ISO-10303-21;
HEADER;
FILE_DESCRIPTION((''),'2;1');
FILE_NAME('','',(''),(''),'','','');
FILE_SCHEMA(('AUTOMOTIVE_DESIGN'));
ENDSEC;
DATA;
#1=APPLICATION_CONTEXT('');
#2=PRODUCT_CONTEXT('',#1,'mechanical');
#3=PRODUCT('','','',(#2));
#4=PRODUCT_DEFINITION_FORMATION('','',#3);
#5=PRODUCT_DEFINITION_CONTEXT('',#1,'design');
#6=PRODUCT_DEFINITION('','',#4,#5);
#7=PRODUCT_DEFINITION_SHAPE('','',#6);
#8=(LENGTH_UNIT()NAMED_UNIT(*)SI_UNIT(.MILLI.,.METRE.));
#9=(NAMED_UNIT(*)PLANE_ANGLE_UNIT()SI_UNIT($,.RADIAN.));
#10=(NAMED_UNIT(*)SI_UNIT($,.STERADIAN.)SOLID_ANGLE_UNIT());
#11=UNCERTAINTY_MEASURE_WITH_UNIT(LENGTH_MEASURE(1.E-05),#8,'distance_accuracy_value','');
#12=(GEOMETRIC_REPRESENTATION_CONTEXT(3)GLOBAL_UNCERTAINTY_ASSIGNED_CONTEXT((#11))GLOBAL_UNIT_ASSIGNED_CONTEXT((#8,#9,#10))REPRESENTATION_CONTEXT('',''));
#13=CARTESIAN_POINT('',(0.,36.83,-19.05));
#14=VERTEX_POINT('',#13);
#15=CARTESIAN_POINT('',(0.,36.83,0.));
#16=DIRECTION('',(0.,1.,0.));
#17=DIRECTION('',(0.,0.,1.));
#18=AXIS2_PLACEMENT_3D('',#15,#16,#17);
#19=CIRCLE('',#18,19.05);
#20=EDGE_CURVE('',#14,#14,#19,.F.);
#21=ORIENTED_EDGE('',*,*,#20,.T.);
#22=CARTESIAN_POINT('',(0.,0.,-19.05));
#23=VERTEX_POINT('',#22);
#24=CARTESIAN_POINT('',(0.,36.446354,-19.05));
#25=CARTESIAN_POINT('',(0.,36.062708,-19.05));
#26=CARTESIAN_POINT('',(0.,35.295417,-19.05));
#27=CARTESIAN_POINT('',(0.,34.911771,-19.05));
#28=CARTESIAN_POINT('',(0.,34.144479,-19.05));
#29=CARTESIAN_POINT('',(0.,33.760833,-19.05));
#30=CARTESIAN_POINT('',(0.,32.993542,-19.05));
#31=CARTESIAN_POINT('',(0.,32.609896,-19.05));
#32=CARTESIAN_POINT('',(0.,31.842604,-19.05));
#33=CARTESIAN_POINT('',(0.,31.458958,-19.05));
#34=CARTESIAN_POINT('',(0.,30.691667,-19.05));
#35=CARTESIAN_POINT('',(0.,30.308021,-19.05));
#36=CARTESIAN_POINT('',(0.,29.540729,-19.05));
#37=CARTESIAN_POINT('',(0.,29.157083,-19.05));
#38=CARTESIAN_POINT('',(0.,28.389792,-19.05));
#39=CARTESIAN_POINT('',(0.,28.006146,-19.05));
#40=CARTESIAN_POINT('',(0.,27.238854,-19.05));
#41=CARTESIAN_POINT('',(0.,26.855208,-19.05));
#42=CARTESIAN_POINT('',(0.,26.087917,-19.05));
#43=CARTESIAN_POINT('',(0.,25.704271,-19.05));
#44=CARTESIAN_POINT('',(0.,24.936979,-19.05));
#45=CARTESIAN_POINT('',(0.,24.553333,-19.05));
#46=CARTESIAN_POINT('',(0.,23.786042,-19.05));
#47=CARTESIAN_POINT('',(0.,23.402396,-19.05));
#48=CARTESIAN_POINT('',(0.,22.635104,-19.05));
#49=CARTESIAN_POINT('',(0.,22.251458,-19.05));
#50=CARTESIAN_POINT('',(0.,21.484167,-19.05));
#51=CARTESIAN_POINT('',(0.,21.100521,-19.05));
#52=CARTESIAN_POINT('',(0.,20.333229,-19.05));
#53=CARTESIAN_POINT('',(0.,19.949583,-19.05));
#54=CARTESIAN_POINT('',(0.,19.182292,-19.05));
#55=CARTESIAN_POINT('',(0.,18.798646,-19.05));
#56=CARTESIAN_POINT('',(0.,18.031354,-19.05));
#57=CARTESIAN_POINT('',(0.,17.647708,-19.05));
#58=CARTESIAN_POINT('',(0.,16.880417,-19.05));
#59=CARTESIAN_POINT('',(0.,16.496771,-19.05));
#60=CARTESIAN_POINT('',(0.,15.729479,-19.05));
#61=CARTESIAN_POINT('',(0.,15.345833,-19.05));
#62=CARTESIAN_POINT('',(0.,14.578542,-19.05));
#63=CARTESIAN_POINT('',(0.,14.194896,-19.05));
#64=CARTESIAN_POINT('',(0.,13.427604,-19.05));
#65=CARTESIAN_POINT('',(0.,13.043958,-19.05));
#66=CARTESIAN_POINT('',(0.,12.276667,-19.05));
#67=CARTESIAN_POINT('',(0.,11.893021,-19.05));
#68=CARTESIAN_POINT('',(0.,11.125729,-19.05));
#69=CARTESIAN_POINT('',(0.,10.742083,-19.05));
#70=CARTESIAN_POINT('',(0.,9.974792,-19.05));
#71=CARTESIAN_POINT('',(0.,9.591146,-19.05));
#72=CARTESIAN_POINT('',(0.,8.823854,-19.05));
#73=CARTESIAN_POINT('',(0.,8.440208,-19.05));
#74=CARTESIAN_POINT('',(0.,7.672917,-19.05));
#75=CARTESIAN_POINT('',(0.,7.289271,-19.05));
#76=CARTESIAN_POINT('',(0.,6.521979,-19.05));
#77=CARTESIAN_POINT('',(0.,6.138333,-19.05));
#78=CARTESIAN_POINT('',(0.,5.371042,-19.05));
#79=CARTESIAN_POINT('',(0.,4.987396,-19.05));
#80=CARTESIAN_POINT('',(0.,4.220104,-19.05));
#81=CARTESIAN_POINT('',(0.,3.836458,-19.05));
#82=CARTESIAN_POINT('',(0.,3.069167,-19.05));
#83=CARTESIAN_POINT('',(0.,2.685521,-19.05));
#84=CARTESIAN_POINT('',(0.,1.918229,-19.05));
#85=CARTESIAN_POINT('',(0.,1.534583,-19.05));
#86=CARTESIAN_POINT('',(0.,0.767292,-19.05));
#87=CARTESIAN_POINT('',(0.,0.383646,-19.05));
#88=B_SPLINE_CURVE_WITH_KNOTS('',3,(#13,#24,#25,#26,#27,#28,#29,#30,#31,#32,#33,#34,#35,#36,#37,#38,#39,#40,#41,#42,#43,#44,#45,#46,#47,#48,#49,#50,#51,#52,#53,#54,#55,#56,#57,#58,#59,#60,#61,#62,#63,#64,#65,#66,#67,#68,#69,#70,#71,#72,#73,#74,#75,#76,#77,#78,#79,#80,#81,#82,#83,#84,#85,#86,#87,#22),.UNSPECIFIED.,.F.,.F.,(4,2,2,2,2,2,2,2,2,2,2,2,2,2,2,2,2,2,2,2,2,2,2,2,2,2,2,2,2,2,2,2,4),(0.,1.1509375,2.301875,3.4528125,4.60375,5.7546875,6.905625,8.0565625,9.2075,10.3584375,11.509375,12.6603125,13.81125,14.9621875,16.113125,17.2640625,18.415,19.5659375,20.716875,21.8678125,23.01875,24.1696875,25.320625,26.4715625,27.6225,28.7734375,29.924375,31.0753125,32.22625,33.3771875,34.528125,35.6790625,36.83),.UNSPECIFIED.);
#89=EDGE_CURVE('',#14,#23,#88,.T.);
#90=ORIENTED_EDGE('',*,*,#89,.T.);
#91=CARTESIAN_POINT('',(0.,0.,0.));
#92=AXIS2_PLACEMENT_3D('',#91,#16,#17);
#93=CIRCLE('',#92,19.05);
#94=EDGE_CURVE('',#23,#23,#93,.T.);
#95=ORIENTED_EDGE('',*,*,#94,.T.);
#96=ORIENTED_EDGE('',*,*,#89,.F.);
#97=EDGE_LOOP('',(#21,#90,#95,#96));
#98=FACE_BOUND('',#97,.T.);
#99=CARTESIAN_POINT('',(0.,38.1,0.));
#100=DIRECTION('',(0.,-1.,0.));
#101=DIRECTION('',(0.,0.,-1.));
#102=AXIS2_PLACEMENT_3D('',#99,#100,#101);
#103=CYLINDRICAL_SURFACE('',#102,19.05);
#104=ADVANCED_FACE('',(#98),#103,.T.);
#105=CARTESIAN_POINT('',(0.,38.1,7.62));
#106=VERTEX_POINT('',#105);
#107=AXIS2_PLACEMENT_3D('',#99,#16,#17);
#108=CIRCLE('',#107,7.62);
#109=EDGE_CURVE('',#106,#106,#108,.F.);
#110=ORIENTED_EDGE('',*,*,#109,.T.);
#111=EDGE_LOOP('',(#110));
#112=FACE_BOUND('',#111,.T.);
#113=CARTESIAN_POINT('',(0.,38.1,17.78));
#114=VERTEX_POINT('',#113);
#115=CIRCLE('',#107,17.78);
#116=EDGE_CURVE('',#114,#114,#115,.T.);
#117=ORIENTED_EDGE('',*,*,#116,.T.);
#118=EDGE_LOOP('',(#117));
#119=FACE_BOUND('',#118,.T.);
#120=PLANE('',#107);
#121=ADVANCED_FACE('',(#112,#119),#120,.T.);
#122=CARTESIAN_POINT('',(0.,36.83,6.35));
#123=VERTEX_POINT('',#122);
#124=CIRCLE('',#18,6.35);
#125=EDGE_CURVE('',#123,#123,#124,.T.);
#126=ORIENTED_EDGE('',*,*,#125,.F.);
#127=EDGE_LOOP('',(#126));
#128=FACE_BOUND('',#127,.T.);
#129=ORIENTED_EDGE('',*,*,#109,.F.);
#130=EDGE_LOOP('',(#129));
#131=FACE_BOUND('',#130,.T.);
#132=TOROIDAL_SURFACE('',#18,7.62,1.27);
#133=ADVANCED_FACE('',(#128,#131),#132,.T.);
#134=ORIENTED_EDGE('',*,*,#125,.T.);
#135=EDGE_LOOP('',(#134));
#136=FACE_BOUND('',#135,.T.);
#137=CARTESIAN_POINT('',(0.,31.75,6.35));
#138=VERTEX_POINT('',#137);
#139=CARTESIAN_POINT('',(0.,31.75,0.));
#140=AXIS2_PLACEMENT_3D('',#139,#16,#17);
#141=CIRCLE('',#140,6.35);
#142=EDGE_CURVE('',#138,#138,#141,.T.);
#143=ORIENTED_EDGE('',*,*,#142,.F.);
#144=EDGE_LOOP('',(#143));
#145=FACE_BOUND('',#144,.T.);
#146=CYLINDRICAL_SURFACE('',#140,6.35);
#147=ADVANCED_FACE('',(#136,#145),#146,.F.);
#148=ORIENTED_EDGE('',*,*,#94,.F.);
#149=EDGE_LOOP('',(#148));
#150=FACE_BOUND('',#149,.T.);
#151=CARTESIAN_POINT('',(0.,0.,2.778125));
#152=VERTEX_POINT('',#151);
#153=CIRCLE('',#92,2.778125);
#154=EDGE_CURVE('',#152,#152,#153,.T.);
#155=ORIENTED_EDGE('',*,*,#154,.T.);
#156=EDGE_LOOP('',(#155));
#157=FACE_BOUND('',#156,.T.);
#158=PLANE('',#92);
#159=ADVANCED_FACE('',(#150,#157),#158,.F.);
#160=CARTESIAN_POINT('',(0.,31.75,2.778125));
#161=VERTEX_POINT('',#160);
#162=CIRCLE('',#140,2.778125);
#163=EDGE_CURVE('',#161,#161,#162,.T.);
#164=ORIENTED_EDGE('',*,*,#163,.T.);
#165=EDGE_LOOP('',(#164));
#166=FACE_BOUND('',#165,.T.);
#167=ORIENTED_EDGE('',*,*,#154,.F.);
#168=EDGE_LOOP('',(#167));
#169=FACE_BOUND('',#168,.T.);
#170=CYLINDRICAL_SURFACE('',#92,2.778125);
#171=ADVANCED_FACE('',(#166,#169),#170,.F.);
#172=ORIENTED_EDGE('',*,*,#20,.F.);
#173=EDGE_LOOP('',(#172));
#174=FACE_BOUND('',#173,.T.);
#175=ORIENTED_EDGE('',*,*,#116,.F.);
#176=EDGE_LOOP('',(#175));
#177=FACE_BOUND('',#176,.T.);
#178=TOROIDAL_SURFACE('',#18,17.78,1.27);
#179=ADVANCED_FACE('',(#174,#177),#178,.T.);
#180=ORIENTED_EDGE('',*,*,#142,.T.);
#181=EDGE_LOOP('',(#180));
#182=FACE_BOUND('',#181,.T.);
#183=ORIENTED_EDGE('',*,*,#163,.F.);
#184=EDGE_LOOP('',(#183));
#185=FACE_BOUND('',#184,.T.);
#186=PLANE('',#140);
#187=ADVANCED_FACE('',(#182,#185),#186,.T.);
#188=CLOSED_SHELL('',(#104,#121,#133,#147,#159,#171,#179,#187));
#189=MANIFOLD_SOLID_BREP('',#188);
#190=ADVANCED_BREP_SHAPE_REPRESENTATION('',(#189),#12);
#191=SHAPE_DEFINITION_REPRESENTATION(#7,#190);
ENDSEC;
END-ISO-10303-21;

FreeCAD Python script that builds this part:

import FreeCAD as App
import Part
import Sketcher
Q = App.Units.Quantity


def edges_at(feature, points):
    """Names of the edges that pass closest to the given points."""
    edges = feature.Shape.Edges
    near = lambda p: min(range(len(edges)), key=lambda i: edges[i].distToShape(Part.Vertex(*p))[0])
    return sorted({f"Edge{near(p) + 1}" for p in points})

doc = App.newDocument("Part")
params = doc.addObject("Spreadsheet::Sheet", "Params")
for row, (alias, value) in enumerate([
    ("sketch1_diameter", "1.5 in"),
    ("pad1_length", "1.5 in"),
    ("sketch2_diameter", "0.5 in"),
    ("pocket1_length", "0.25 in"),
    ("sketch3_diameter", "0.21875 in"),
    ("fillet_radius", "0.05 in"),
], start=1):
    params.set(f"A{row}", alias)
    params.set(f"B{row}", "=" + value)
    params.setAlias(f"B{row}", alias)

body = doc.addObject("PartDesign::Body", "Body")

sketch1 = doc.addObject("Sketcher::SketchObject", "Sketch")
body.addObject(sketch1)
sketch1.AttachmentSupport = (doc.XZ_Plane, [""])
sketch1.MapMode = "FlatFace"
sketch1.addGeometry(Part.Circle(App.Vector(0, 0, 0), App.Vector(0, 0, 1), 19), False)
sketch1.addConstraint([
    Sketcher.Constraint("Coincident", 0, 3, -1, 1),
    Sketcher.Constraint("Diameter", 0, Q("1.5 in")),
])
sketch1.setExpression("Constraints[1]", "Params.sketch1_diameter")
pad1 = doc.addObject("PartDesign::Pad", "Pad")
body.addObject(pad1)
pad1.Profile = sketch1
pad1.setExpression("Length", "Params.pad1_length")
pad1.Reversed = True

sketch2 = doc.addObject("Sketcher::SketchObject", "Sketch001")
body.addObject(sketch2)
sketch2.AttachmentSupport = (doc.XZ_Plane, [""])
sketch2.MapMode = "FlatFace"
sketch2.AttachmentOffset = App.Placement(App.Vector(0, 0, -1.5 * 25.4), App.Rotation())
sketch2.addGeometry(Part.Circle(App.Vector(0, 0, 0), App.Vector(0, 0, 1), 6), False)
sketch2.addConstraint([
    Sketcher.Constraint("Coincident", 0, 3, -1, 1),
    Sketcher.Constraint("Diameter", 0, Q("0.5 in")),
])
sketch2.setExpression("Constraints[1]", "Params.sketch2_diameter")
pocket1 = doc.addObject("PartDesign::Pocket", "Pocket")
body.addObject(pocket1)
pocket1.Profile = sketch2
pocket1.setExpression("Length", "Params.pocket1_length")
pocket1.Reversed = True

sketch3 = doc.addObject("Sketcher::SketchObject", "Sketch002")
body.addObject(sketch3)
sketch3.AttachmentSupport = (doc.XZ_Plane, [""])
sketch3.MapMode = "FlatFace"
sketch3.AttachmentOffset = App.Placement(App.Vector(0, 0, -1.25 * 25.4), App.Rotation())
sketch3.addGeometry(Part.Circle(App.Vector(0, 0, 0), App.Vector(0, 0, 1), 2.8), False)
sketch3.addConstraint([
    Sketcher.Constraint("Coincident", 0, 3, -1, 1),
    Sketcher.Constraint("Diameter", 0, Q("0.21875 in")),
])
sketch3.setExpression("Constraints[1]", "Params.sketch3_diameter")
pocket2 = doc.addObject("PartDesign::Pocket", "Pocket001")
body.addObject(pocket2)
pocket2.Profile = sketch3
pocket2.Type = "ThroughAll"
pocket2.Reversed = True
doc.recompute()

fillet = doc.addObject("PartDesign::Fillet", "Fillet")
body.addObject(fillet)
fillet.Base = (pocket2, edges_at(pocket2, [(0, 38.1, 19.05), (0, 38.1, -6.35)]))
fillet.setExpression("Radius", "Params.fillet_radius")

doc.recompute()
